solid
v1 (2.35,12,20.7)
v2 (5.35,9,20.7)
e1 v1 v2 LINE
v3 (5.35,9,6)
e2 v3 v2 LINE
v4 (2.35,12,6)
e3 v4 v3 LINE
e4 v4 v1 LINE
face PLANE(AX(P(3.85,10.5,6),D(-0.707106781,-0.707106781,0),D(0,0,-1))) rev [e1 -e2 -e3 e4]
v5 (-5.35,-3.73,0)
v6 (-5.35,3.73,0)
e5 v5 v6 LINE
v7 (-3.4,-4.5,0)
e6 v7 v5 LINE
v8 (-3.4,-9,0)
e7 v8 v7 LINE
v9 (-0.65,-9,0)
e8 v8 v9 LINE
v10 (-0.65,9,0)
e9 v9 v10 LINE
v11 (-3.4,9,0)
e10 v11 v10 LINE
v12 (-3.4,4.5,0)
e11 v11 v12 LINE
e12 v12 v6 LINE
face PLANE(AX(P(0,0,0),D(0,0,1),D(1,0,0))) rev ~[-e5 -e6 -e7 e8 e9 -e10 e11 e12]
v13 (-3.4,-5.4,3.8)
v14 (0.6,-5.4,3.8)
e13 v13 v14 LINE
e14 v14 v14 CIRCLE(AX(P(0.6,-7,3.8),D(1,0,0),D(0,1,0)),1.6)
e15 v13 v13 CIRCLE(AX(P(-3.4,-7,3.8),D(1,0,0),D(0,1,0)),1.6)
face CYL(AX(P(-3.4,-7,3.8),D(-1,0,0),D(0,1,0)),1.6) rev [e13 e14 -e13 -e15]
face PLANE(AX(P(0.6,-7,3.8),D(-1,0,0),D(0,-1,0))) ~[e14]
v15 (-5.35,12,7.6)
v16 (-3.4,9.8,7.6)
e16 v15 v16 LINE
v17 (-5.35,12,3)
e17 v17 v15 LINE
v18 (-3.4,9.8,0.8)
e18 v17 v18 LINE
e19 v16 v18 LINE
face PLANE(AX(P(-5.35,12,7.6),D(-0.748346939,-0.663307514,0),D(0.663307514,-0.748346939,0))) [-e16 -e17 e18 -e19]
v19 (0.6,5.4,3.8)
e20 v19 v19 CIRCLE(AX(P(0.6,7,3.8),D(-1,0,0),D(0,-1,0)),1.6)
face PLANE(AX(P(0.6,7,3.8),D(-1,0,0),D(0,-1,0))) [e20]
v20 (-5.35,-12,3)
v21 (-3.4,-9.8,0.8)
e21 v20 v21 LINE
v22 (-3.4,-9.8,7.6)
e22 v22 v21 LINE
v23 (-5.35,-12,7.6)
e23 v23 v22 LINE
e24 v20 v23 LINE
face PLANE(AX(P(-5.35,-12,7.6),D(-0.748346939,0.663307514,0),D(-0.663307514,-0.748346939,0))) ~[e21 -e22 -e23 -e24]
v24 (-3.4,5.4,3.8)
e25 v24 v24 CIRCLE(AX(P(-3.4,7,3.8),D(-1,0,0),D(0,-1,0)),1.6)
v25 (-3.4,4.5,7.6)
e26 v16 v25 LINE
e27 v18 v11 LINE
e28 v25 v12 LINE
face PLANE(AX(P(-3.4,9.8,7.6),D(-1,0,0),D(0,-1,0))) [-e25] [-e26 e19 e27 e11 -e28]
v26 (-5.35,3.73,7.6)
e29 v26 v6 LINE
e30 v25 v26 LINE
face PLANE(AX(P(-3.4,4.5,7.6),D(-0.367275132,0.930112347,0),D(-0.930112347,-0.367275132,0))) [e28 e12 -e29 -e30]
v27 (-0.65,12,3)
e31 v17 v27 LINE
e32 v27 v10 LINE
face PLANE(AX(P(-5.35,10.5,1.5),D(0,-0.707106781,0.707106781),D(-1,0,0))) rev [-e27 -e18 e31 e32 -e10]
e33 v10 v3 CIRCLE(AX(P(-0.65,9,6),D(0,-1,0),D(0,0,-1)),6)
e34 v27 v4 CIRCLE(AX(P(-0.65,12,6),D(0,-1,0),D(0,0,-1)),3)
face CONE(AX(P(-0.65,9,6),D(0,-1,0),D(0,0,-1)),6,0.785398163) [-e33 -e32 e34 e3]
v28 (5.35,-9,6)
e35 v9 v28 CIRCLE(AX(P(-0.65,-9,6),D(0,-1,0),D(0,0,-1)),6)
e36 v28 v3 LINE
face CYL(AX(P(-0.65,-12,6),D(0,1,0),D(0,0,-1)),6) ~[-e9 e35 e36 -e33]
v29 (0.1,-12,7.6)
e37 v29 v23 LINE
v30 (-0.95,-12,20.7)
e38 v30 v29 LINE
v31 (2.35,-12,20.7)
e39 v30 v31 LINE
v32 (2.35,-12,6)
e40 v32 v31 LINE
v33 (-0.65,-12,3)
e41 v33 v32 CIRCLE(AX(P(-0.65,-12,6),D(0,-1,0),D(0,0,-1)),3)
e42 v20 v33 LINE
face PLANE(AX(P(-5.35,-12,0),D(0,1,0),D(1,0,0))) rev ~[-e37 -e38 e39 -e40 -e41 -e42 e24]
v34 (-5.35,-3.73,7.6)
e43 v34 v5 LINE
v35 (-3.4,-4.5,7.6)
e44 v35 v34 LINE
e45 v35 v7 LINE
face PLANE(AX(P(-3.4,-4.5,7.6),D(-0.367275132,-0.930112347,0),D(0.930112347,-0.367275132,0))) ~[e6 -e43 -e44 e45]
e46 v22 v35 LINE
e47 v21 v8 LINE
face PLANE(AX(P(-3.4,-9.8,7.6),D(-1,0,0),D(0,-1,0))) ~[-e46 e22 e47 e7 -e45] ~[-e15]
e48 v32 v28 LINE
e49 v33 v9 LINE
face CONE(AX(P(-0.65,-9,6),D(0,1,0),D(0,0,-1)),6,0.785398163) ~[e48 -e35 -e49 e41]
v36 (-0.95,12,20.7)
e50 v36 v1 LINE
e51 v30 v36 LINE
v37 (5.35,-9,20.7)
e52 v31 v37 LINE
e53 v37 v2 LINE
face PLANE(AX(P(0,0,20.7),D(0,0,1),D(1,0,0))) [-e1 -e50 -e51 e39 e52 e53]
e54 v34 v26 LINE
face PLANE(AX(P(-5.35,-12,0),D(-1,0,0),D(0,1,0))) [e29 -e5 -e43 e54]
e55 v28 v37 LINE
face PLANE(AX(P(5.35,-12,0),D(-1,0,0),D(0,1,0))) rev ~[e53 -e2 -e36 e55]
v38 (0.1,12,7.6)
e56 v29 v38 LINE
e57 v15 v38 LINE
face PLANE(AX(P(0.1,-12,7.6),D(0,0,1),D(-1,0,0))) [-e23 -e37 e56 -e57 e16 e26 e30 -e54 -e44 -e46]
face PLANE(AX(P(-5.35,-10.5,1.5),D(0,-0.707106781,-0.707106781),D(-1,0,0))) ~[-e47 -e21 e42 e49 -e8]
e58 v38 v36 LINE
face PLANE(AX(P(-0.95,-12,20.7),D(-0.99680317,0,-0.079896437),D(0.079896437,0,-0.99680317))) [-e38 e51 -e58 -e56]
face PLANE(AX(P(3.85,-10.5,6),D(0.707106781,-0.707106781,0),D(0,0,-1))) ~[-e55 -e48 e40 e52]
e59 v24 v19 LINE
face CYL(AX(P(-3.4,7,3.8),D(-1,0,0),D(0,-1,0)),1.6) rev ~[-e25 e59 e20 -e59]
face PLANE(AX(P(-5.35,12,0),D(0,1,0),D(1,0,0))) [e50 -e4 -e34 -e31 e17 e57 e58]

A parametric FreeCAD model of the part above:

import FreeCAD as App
import Part
import Sketcher
from FreeCAD import Vector
Q = App.Units.Quantity


def edges_at(feature, points):
    """Names of the edges that pass closest to the given points."""
    edges = feature.Shape.Edges
    near = lambda p: min(range(len(edges)), key=lambda i: edges[i].distToShape(Part.Vertex(*p))[0])
    return sorted({f"Edge{near(p) + 1}" for p in points})

doc = App.newDocument("Part")
params = doc.addObject("Spreadsheet::Sheet", "Params")
for row, (alias, value) in enumerate([
    ("sketch1_height", "24 mm"),
    ("sketch1_width", "10.7 mm"),
    ("pad1_length", "20.7 mm"),
    ("sketch2_width", "4.4 mm"),
    ("sketch2_height", "13.1 mm"),
    ("sketch2_width2", "5.45 mm"),
    ("fillet_radius", "6 mm"),
    ("sketch3_height", "5.3 mm"),
    ("sketch3_height2", "8.27 mm"),
    ("sketch4_diameter", "3.2 mm"),
    ("pocket3_length", "4 mm"),
    ("chamfer_size", "3 mm"),
    ("chamfer2_size", "3 mm"),
], start=1):
    params.set(f"A{row}", alias)
    params.set(f"B{row}", "=" + value)
    params.setAlias(f"B{row}", alias)

body = doc.addObject("PartDesign::Body", "Body")

# Sketch on XY plane
sketch1 = body.newObject("Sketcher::SketchObject", "Sketch")
sketch1.AttachmentSupport = (doc.getObject("XY_Plane"), [""])
sketch1.MapMode = "FlatFace"
sketch1.addGeometry(Part.LineSegment(Vector(-5, 12, 0), Vector(-5, -12, 0)), False)
sketch1.addGeometry(Part.LineSegment(Vector(-5, -12, 0), Vector(5, -12, 0)), False)
sketch1.addGeometry(Part.LineSegment(Vector(5, -12, 0), Vector(5, 12, 0)), False)
sketch1.addGeometry(Part.LineSegment(Vector(5, 12, 0), Vector(-5, 12, 0)), False)
sketch1.addConstraint(Sketcher.Constraint("Coincident", 0, 2, 1, 1))
sketch1.addConstraint(Sketcher.Constraint("Coincident", 1, 2, 2, 1))
sketch1.addConstraint(Sketcher.Constraint("Coincident", 2, 2, 3, 1))
sketch1.addConstraint(Sketcher.Constraint("Coincident", 3, 2, 0, 1))
sketch1.addConstraint(Sketcher.Constraint("Vertical", 0))
sketch1.addConstraint(Sketcher.Constraint("Horizontal", 1))
sketch1.addConstraint(Sketcher.Constraint("Vertical", 2))
sketch1.addConstraint(Sketcher.Constraint("Horizontal", 3))
sketch1.addConstraint(Sketcher.Constraint("Symmetric", 0, 2, 2, 2, -1, 1))
sketch1.addConstraint(Sketcher.Constraint("DistanceY", 0, 2, 0, 1, Q("24 mm")))
sketch1.addConstraint(Sketcher.Constraint("DistanceX", 1, 1, 1, 2, Q("10.7 mm")))
sketch1.setExpression("Constraints[9]", "Params.sketch1_height")
sketch1.setExpression("Constraints[10]", "Params.sketch1_width")
pad1 = body.newObject("PartDesign::Pad", "Pad")
pad1.Profile = sketch1
pad1.setExpression("Length", "Params.pad1_length")

# Sketch on XZ plane
sketch2 = body.newObject("Sketcher::SketchObject", "Sketch001")
sketch2.AttachmentSupport = (doc.getObject("XZ_Plane"), [""])
sketch2.MapMode = "FlatFace"
sketch2.AttachmentOffset = App.Placement(Vector(0, 0, 12), App.Rotation())
sketch2.addGeometry(Part.LineSegment(Vector(0.1, 7.6, 0), Vector(-0.9, 20.7, 0)), False)
sketch2.addGeometry(Part.LineSegment(Vector(-0.9, 20.7, 0), Vector(-5.3, 20.7, 0)), False)
sketch2.addGeometry(Part.LineSegment(Vector(-5.3, 20.7, 0), Vector(-5.3, 7.6, 0)), False)
sketch2.addGeometry(Part.LineSegment(Vector(-5.3, 7.6, 0), Vector(0.1, 7.6, 0)), False)
sketch2.addConstraint(Sketcher.Constraint("Coincident", 0, 2, 1, 1))
sketch2.addConstraint(Sketcher.Constraint("Coincident", 1, 2, 2, 1))
sketch2.addConstraint(Sketcher.Constraint("Coincident", 2, 2, 3, 1))
sketch2.addConstraint(Sketcher.Constraint("Coincident", 3, 2, 0, 1))
sketch2.addConstraint(Sketcher.Constraint("Horizontal", 1))
sketch2.addConstraint(Sketcher.Constraint("Vertical", 2))
sketch2.addConstraint(Sketcher.Constraint("Horizontal", 3))
sketch2.addConstraint(Sketcher.Constraint("DistanceX", 1, 2, 1, 1, Q("4.4 mm")))
sketch2.addConstraint(Sketcher.Constraint("DistanceY", 2, 2, 2, 1, Q("13.1 mm")))
sketch2.addConstraint(Sketcher.Constraint("DistanceX", 3, 1, 3, 2, Q("5.45 mm")))
sketch2.addConstraint(Sketcher.Constraint("DistanceY", -1, 1, 0, 2, Q("20.7 mm")))
sketch2.addConstraint(Sketcher.Constraint("DistanceX", -1, 1, 3, 2, Q("0.1 mm")))
sketch2.setExpression("Constraints[7]", "Params.sketch2_width")
sketch2.setExpression("Constraints[8]", "Params.sketch2_height")
sketch2.setExpression("Constraints[9]", "Params.sketch2_width2")
pocket1 = body.newObject("PartDesign::Pocket", "Pocket")
pocket1.Profile = sketch2
pocket1.Type = "ThroughAll"
doc.recompute()

fillet = body.newObject("PartDesign::Fillet", "Fillet")
fillet.Base = (pocket1, edges_at(pocket1, [(5.35, 0, 0)]))
fillet.setExpression("Radius", "Params.fillet_radius")

# Sketch on XY plane
sketch3 = body.newObject("Sketcher::SketchObject", "Sketch002")
sketch3.AttachmentSupport = (doc.getObject("XY_Plane"), [""])
sketch3.MapMode = "FlatFace"
sketch3.AttachmentOffset = App.Placement(Vector(0, 0, 7.6), App.Rotation())
sketch3.addGeometry(Part.LineSegment(Vector(-3.4, 9.8, 0), Vector(-5.3, 12, 0)), False)
sketch3.addGeometry(Part.LineSegment(Vector(-5.3, 12, 0), Vector(-5.3, 3.7, 0)), False)
sketch3.addGeometry(Part.LineSegment(Vector(-5.3, 3.7, 0), Vector(-3.4, 4.5, 0)), False)
sketch3.addGeometry(Part.LineSegment(Vector(-3.4, 4.5, 0), Vector(-3.4, 9.8, 0)), False)
sketch3.addConstraint(Sketcher.Constraint("Coincident", 0, 2, 1, 1))
sketch3.addConstraint(Sketcher.Constraint("Coincident", 1, 2, 2, 1))
sketch3.addConstraint(Sketcher.Constraint("Coincident", 2, 2, 3, 1))
sketch3.addConstraint(Sketcher.Constraint("Coincident", 3, 2, 0, 1))
sketch3.addConstraint(Sketcher.Constraint("Vertical", 1))
sketch3.addConstraint(Sketcher.Constraint("Vertical", 3))
sketch3.addConstraint(Sketcher.Constraint("DistanceY", 3, 1, 3, 2, Q("5.3 mm")))
sketch3.addConstraint(Sketcher.Constraint("DistanceY", -1, 1, 0, 2, Q("12 mm")))
sketch3.addConstraint(Sketcher.Constraint("DistanceY", 1, 2, 1, 1, Q("8.27 mm")))
sketch3.addConstraint(Sketcher.Constraint("DistanceX", 2, 2, -1, 1, Q("3.4 mm")))
sketch3.addConstraint(Sketcher.Constraint("DistanceY", -1, 1, 2, 2, Q("4.5 mm")))
sketch3.addConstraint(Sketcher.Constraint("DistanceX", 0, 2, -1, 1, Q("5.35 mm")))
sketch3.setExpression("Constraints[6]", "Params.sketch3_height")
sketch3.setExpression("Constraints[8]", "Params.sketch3_height2")
pocket2 = body.newObject("PartDesign::Pocket", "Pocket001")
pocket2.Profile = sketch3
pocket2.Type = "ThroughAll"
doc.recompute()

mirrored = body.newObject("PartDesign::Mirrored", "Mirrored")
mirrored.Originals = [pocket2]
mirrored.MirrorPlane = (doc.getObject("XZ_Plane"), [""])
body.Tip = mirrored

# Sketch on YZ plane
sketch4 = body.newObject("Sketcher::SketchObject", "Sketch003")
sketch4.AttachmentSupport = (doc.getObject("YZ_Plane"), [""])
sketch4.MapMode = "FlatFace"
sketch4.AttachmentOffset = App.Placement(Vector(0, 0, -3.4), App.Rotation())
sketch4.addGeometry(Part.Circle(Vector(7, 3.8, 0), Vector(0, 0, 1), 1.6), False)
sketch4.addConstraint(Sketcher.Constraint("Diameter", 0, Q("3.2 mm")))
sketch4.addConstraint(Sketcher.Constraint("DistanceX", -1, 1, 0, 3, Q("7 mm")))
sketch4.addConstraint(Sketcher.Constraint("DistanceY", -1, 1, 0, 3, Q("3.8 mm")))
sketch4.setExpression("Constraints[0]", "Params.sketch4_diameter")
pocket3 = body.newObject("PartDesign::Pocket", "Pocket002")
pocket3.Profile = sketch4
pocket3.setExpression("Length", "Params.pocket3_length")
pocket3.Reversed = True
doc.recompute()

mirrored2 = body.newObject("PartDesign::Mirrored", "Mirrored001")
mirrored2.Originals = [pocket3]
mirrored2.MirrorPlane = (doc.getObject("XZ_Plane"), [""])
body.Tip = mirrored2
doc.recompute()

chamfer = body.newObject("PartDesign::Chamfer", "Chamfer")
chamfer.Base = (mirrored2, edges_at(mirrored2, [(5.35, -12, 13.35)]))
chamfer.setExpression("Size", "Params.chamfer_size")
doc.recompute()

chamfer2 = body.newObject("PartDesign::Chamfer", "Chamfer001")
chamfer2.Base = (chamfer, edges_at(chamfer, [(5.35, 12, 13.35)]))
chamfer2.setExpression("Size", "Params.chamfer2_size")

doc.recompute()
